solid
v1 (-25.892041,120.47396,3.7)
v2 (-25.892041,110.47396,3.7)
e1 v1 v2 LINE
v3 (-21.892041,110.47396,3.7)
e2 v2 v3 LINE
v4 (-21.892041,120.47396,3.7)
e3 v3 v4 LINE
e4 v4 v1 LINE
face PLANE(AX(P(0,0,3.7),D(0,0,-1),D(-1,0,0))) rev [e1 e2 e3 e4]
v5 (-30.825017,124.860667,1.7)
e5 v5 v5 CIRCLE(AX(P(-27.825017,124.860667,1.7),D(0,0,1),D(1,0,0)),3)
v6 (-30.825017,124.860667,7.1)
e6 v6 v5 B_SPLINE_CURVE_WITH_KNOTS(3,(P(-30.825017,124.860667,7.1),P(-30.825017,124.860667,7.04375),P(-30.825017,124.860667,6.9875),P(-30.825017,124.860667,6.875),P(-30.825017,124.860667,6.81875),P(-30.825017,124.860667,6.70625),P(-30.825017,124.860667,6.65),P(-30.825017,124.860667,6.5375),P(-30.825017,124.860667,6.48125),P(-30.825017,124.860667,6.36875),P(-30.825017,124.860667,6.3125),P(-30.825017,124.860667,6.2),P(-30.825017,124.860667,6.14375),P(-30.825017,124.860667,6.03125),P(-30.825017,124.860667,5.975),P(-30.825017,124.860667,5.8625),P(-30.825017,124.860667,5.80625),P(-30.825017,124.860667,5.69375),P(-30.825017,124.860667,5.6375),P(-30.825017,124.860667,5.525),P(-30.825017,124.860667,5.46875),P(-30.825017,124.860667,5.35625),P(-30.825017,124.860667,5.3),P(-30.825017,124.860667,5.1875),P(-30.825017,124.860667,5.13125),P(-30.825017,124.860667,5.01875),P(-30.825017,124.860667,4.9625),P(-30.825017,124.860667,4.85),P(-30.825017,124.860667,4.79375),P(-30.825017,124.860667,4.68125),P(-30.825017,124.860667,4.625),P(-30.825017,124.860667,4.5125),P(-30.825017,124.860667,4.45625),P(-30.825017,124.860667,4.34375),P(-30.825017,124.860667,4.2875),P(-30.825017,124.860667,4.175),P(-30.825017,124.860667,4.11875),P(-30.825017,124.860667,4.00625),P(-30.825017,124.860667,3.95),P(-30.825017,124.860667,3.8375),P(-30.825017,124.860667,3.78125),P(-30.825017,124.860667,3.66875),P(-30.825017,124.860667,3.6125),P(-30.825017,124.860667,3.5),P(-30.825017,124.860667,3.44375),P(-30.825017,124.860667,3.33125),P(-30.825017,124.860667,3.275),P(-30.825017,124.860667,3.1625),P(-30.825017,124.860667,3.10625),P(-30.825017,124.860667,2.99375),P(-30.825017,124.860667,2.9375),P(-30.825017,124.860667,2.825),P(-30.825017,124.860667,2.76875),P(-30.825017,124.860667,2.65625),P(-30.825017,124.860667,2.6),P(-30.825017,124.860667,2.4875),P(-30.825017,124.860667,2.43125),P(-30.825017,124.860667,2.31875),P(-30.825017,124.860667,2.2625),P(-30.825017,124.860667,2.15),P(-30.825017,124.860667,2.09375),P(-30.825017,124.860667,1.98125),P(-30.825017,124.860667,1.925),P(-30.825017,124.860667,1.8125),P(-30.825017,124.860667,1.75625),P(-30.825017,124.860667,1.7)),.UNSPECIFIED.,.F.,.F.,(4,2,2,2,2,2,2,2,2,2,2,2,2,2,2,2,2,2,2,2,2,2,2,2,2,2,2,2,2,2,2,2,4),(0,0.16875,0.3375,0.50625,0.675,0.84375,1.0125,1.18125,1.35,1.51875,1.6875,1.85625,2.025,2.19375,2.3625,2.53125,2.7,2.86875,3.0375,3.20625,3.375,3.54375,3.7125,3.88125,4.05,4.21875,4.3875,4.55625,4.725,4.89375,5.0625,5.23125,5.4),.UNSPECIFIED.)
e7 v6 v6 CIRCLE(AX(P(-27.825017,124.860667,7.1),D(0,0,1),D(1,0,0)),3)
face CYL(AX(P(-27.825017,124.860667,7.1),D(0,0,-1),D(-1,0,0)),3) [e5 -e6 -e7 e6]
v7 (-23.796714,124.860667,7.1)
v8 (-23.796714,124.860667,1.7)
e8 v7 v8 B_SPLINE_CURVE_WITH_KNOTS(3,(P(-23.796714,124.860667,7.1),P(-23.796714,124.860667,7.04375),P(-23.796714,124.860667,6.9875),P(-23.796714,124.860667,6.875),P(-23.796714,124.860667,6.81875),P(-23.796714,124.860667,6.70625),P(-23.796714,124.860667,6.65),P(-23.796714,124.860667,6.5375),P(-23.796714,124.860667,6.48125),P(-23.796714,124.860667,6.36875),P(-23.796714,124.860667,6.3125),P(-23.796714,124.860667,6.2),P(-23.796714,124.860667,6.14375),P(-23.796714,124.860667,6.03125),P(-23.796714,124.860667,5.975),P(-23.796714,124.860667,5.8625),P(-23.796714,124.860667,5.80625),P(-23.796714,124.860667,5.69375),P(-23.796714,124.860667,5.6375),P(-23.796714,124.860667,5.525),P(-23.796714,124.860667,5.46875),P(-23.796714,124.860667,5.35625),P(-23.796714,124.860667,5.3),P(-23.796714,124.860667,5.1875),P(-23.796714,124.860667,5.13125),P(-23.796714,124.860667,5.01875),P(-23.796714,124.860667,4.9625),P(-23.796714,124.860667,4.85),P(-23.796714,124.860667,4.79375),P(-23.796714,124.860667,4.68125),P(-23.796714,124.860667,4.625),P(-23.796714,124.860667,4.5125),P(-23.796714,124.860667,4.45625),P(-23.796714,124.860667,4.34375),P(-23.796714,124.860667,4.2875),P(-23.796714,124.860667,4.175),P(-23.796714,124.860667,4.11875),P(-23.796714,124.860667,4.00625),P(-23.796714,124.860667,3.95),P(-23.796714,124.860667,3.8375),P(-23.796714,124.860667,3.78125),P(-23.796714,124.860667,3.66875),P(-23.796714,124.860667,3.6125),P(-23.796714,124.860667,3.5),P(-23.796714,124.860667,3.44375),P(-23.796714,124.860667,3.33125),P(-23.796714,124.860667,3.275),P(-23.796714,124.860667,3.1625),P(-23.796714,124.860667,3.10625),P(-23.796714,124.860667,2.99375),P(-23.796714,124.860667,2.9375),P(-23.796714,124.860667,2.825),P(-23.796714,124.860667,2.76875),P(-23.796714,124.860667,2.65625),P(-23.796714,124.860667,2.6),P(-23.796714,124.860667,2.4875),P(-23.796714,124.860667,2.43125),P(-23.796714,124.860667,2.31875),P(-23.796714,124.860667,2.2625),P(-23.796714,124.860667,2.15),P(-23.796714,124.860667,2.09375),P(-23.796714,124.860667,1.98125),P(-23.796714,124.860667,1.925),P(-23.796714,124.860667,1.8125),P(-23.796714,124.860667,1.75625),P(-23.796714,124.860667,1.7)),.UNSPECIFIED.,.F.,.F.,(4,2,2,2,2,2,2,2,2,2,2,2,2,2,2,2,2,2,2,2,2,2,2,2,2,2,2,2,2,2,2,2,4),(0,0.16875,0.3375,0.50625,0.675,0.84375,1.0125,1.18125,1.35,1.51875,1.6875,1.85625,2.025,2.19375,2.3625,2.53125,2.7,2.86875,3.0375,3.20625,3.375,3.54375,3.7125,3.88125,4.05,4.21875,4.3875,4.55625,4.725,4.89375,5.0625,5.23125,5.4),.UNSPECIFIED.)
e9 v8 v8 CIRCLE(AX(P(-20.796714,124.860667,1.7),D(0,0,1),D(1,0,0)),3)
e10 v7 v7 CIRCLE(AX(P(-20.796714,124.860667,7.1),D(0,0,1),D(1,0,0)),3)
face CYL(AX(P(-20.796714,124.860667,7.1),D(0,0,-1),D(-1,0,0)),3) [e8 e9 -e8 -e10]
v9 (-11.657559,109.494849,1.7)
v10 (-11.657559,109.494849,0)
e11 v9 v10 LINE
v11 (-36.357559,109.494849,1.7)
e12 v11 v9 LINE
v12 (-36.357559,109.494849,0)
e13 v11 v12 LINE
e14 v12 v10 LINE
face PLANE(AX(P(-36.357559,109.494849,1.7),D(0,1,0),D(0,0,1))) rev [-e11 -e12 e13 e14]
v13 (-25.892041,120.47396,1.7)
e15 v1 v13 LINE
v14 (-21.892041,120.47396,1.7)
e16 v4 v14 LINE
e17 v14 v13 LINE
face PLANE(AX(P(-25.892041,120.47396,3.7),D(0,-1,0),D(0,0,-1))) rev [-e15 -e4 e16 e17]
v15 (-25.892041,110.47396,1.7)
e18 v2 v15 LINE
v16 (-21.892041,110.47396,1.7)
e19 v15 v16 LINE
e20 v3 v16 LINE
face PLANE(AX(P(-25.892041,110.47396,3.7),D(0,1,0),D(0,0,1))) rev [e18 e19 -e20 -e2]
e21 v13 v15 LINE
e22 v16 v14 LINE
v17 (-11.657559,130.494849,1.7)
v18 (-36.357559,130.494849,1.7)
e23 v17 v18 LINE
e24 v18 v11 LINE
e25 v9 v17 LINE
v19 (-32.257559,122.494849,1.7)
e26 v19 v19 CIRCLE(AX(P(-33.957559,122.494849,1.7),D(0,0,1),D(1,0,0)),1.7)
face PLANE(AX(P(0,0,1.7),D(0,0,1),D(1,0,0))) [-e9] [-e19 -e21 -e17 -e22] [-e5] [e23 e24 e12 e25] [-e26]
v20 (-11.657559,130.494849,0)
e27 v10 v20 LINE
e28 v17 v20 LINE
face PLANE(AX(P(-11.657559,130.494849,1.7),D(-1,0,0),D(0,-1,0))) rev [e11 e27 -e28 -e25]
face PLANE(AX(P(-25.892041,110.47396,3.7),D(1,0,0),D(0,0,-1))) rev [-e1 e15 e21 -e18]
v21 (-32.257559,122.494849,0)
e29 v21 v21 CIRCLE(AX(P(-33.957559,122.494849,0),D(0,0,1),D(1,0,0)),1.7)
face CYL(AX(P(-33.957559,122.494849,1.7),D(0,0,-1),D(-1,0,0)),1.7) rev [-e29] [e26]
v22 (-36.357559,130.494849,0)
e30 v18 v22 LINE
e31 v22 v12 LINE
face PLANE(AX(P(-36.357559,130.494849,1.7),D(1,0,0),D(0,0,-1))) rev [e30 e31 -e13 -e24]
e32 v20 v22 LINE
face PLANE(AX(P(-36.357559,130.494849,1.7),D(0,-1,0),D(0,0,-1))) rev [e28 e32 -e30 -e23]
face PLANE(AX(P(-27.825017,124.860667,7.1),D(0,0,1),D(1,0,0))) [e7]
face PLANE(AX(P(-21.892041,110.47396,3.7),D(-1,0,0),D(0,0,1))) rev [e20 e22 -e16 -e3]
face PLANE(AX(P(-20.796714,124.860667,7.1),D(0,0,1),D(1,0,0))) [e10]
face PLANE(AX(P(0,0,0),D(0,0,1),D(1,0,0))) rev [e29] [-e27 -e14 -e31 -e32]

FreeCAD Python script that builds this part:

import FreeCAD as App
import Part
import Sketcher
Q = App.Units.Quantity

doc = App.newDocument("Part")
params = doc.addObject("Spreadsheet::Sheet", "Params")
for row, (alias, value) in enumerate([
    ("sketch1_diameter", "3.4 mm"),
    ("sketch1_height", "21 mm"),
    ("sketch1_width", "24.7 mm"),
    ("pad1_length", "1.7 mm"),
    ("sketch2_diameter", "6 mm"),
    ("pad2_length", "5.4 mm"),
    ("sketch3_width", "4 mm"),
    ("sketch3_height", "10 mm"),
    ("pad3_length", "2 mm"),
], start=1):
    params.set(f"A{row}", alias)
    params.set(f"B{row}", "=" + value)
    params.setAlias(f"B{row}", alias)

body = doc.addObject("PartDesign::Body", "Body")

# Sketch on XY plane
sketch1 = body.newObject("Sketcher::SketchObject", "Sketch")
sketch1.AttachmentSupport = (doc.getObject("XY_Plane"), [""])
sketch1.MapMode = "FlatFace"
sketch1.addGeometry([
    Part.LineSegment(App.Vector(-36.4, 130.5, 0), App.Vector(-36.4, 109.5, 0)),  # 0
    Part.LineSegment(App.Vector(-36.4, 109.5, 0), App.Vector(-11.7, 109.5, 0)),  # 1
    Part.LineSegment(App.Vector(-11.7, 109.5, 0), App.Vector(-11.7, 130.5, 0)),  # 2
    Part.LineSegment(App.Vector(-11.7, 130.5, 0), App.Vector(-36.4, 130.5, 0)),  # 3
    Part.Circle(App.Vector(-34, 122.5, 0), App.Vector(0, 0, 1), 1.7),  # 4
], False)
sketch1.addConstraint([
    Sketcher.Constraint("Coincident", 0, 2, 1, 1),
    Sketcher.Constraint("Coincident", 1, 2, 2, 1),
    Sketcher.Constraint("Coincident", 2, 2, 3, 1),
    Sketcher.Constraint("Coincident", 3, 2, 0, 1),
    Sketcher.Constraint("Vertical", 0),
    Sketcher.Constraint("Horizontal", 1),
    Sketcher.Constraint("Vertical", 2),
    Sketcher.Constraint("Horizontal", 3),
    Sketcher.Constraint("Diameter", 4, Q("3.4 mm")),
    Sketcher.Constraint("DistanceY", 0, 2, 0, 1, Q("21 mm")),
    Sketcher.Constraint("DistanceX", 1, 1, 1, 2, Q("24.7 mm")),
    Sketcher.Constraint("DistanceY", 0, 2, 4, 3, Q("13 mm")),
    Sketcher.Constraint("DistanceX", 0, 2, 4, 3, Q("2.4 mm")),
    Sketcher.Constraint("DistanceX", 4, 3, -1, 1, Q("33.957559 mm")),
    Sketcher.Constraint("DistanceY", -1, 1, 4, 3, Q("122.494849 mm")),
])
sketch1.setExpression("Constraints[8]", "Params.sketch1_diameter")
sketch1.setExpression("Constraints[9]", "Params.sketch1_height")
sketch1.setExpression("Constraints[10]", "Params.sketch1_width")
pad1 = body.newObject("PartDesign::Pad", "Pad")
pad1.Profile = sketch1
pad1.setExpression("Length", "Params.pad1_length")

# Sketch on XY plane
sketch2 = body.newObject("Sketcher::SketchObject", "Sketch001")
sketch2.AttachmentSupport = (doc.getObject("XY_Plane"), [""])
sketch2.MapMode = "FlatFace"
sketch2.AttachmentOffset = App.Placement(App.Vector(0, 0, 1.7), App.Rotation())
sketch2.addGeometry([
    Part.Circle(App.Vector(-27.8, 124.9, 0), App.Vector(0, 0, 1), 3),
    Part.Circle(App.Vector(-20.8, 124.9, 0), App.Vector(0, 0, 1), 3),
], False)
sketch2.addConstraint([
    Sketcher.Constraint("Equal", 0, 1),
    Sketcher.Constraint("Horizontal", 0, 3, 1, 3),
    Sketcher.Constraint("Diameter", 0, Q("6 mm")),
    Sketcher.Constraint("DistanceX", 0, 3, -1, 1, Q("27.825017 mm")),
    Sketcher.Constraint("DistanceY", -1, 1, 0, 3, Q("124.860667 mm")),
    Sketcher.Constraint("DistanceX", 1, 3, -1, 1, Q("20.796714 mm")),
])
sketch2.setExpression("Constraints[2]", "Params.sketch2_diameter")
pad2 = body.newObject("PartDesign::Pad", "Pad001")
pad2.Profile = sketch2
pad2.setExpression("Length", "Params.pad2_length")

# Sketch on XY plane
sketch3 = body.newObject("Sketcher::SketchObject", "Sketch002")
sketch3.AttachmentSupport = (doc.getObject("XY_Plane"), [""])
sketch3.MapMode = "FlatFace"
sketch3.AttachmentOffset = App.Placement(App.Vector(0, 0, 1.7), App.Rotation())
sketch3.addGeometry([
    Part.LineSegment(App.Vector(-25.9, 120.5, 0), App.Vector(-25.9, 110.5, 0)),
    Part.LineSegment(App.Vector(-25.9, 110.5, 0), App.Vector(-21.9, 110.5, 0)),
    Part.LineSegment(App.Vector(-21.9, 110.5, 0), App.Vector(-21.9, 120.5, 0)),
    Part.LineSegment(App.Vector(-21.9, 120.5, 0), App.Vector(-25.9, 120.5, 0)),
], False)
sketch3.addConstraint([
    Sketcher.Constraint("Coincident", 0, 2, 1, 1),
    Sketcher.Constraint("Coincident", 1, 2, 2, 1),
    Sketcher.Constraint("Coincident", 2, 2, 3, 1),
    Sketcher.Constraint("Coincident", 3, 2, 0, 1),
    Sketcher.Constraint("Vertical", 0),
    Sketcher.Constraint("Horizontal", 1),
    Sketcher.Constraint("Vertical", 2),
    Sketcher.Constraint("Horizontal", 3),
    Sketcher.Constraint("DistanceX", 1, 1, 1, 2, Q("4 mm")),
    Sketcher.Constraint("DistanceY", 0, 2, 0, 1, Q("10 mm")),
    Sketcher.Constraint("DistanceX", 0, 2, -1, 1, Q("25.892041 mm")),
    Sketcher.Constraint("DistanceY", -1, 1, 0, 2, Q("110.47396 mm")),
])
sketch3.setExpression("Constraints[8]", "Params.sketch3_width")
sketch3.setExpression("Constraints[9]", "Params.sketch3_height")
pad3 = body.newObject("PartDesign::Pad", "Pad002")
pad3.Profile = sketch3
pad3.setExpression("Length", "Params.pad3_length")

doc.recompute()
